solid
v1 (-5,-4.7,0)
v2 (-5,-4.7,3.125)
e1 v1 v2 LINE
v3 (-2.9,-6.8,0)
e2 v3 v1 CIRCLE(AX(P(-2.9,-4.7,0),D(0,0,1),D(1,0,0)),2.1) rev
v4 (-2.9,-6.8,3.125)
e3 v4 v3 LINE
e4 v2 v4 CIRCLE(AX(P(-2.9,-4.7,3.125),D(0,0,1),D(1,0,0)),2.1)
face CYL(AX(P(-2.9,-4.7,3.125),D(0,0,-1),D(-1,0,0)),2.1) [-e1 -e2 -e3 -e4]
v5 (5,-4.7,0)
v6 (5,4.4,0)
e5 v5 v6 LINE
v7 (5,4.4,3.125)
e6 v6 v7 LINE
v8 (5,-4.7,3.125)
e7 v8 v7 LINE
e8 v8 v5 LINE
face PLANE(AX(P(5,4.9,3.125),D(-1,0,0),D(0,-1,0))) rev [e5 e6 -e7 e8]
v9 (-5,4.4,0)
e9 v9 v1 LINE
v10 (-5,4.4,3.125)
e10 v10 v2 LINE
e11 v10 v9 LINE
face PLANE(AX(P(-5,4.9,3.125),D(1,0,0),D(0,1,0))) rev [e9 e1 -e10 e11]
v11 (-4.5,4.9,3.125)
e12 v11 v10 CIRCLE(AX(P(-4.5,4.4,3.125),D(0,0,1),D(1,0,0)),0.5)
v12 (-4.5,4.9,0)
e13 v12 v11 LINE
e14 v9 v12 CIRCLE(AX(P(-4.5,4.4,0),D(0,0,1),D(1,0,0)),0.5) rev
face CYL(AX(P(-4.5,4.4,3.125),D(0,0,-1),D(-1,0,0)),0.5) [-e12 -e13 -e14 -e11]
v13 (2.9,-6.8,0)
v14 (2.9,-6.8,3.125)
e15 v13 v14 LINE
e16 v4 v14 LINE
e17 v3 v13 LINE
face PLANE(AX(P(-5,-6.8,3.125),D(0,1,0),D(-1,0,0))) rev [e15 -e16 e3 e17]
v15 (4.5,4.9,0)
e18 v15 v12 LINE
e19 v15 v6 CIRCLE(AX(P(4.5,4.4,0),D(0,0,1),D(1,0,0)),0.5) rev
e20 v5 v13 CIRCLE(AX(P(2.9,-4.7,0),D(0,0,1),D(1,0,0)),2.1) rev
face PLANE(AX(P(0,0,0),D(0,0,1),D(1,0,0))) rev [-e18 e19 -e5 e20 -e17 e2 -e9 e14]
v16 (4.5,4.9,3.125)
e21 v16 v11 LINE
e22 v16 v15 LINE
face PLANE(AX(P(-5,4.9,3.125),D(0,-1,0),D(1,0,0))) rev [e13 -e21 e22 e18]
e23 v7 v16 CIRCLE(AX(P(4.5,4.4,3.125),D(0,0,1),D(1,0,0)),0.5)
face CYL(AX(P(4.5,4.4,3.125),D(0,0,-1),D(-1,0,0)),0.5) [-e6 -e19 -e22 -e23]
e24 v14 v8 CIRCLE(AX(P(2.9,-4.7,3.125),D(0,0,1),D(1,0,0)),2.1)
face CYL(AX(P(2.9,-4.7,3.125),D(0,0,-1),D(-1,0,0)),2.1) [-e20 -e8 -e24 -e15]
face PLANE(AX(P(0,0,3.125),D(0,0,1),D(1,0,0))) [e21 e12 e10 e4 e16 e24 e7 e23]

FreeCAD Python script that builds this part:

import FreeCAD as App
import Part
import Sketcher

V = App.Vector
Q = App.Units.Quantity


def edges_at(feature, points):
    """Names of the edges that pass closest to the given points."""
    edges = feature.Shape.Edges
    near = lambda p: min(range(len(edges)), key=lambda i: edges[i].distToShape(Part.Vertex(*p))[0])
    return sorted({f"Edge{near(p) + 1}" for p in points})


def add_polygon(sketch, points):
    """Adds a closed chain of lines whose ends are joined by coincident constraints."""
    first, n = sketch.GeometryCount, len(points)
    for a, b in zip(points, points[1:] + points[:1]):
        sketch.addGeometry(Part.LineSegment(App.Vector(*a, 0), App.Vector(*b, 0)), False)
    for i in range(n):
        sketch.addConstraint(Sketcher.Constraint("Coincident", first + i, 2, first + (i + 1) % n, 1))

doc = App.newDocument("Part")
body = doc.addObject("PartDesign::Body", "Body")

sketch1 = doc.addObject("Sketcher::SketchObject", "Sketch")
body.addObject(sketch1)
sketch1.AttachmentSupport = (doc.XY_Plane, [""])
sketch1.MapMode = "FlatFace"
add_polygon(sketch1, [(-5, 5), (-5, -7), (5, -7), (5, 5)])
sketch1.addConstraint([
    Sketcher.Constraint("Vertical", 0),
    Sketcher.Constraint("Horizontal", 1),
    Sketcher.Constraint("Vertical", 2),
    Sketcher.Constraint("Horizontal", 3),
    Sketcher.Constraint("DistanceX", 1, 1, 1, 2, Q("10 mm")),
    Sketcher.Constraint("DistanceY", 0, 2, 0, 1, Q("11.7 mm")),
    Sketcher.Constraint("DistanceX", 0, 2, -1, 1, Q("5 mm")),
    Sketcher.Constraint("DistanceY", 0, 2, -1, 1, Q("6.8 mm")),
])
pad1 = doc.addObject("PartDesign::Pad", "Pad")
body.addObject(pad1)
pad1.Profile = sketch1
pad1.Length = 3.125
doc.recompute()

fillet = doc.addObject("PartDesign::Fillet", "Fillet")
body.addObject(fillet)
fillet.Base = (pad1, edges_at(pad1, [(5, -6.8, 1.562), (-5, -6.8, 1.562)]))
fillet.Radius = 2.1
doc.recompute()

fillet2 = doc.addObject("PartDesign::Fillet", "Fillet001")
body.addObject(fillet2)
fillet2.Base = (fillet, edges_at(fillet, [(-5, 4.9, 1.562), (5, 4.9, 1.562)]))
fillet2.Radius = 0.5

doc.recompute()
